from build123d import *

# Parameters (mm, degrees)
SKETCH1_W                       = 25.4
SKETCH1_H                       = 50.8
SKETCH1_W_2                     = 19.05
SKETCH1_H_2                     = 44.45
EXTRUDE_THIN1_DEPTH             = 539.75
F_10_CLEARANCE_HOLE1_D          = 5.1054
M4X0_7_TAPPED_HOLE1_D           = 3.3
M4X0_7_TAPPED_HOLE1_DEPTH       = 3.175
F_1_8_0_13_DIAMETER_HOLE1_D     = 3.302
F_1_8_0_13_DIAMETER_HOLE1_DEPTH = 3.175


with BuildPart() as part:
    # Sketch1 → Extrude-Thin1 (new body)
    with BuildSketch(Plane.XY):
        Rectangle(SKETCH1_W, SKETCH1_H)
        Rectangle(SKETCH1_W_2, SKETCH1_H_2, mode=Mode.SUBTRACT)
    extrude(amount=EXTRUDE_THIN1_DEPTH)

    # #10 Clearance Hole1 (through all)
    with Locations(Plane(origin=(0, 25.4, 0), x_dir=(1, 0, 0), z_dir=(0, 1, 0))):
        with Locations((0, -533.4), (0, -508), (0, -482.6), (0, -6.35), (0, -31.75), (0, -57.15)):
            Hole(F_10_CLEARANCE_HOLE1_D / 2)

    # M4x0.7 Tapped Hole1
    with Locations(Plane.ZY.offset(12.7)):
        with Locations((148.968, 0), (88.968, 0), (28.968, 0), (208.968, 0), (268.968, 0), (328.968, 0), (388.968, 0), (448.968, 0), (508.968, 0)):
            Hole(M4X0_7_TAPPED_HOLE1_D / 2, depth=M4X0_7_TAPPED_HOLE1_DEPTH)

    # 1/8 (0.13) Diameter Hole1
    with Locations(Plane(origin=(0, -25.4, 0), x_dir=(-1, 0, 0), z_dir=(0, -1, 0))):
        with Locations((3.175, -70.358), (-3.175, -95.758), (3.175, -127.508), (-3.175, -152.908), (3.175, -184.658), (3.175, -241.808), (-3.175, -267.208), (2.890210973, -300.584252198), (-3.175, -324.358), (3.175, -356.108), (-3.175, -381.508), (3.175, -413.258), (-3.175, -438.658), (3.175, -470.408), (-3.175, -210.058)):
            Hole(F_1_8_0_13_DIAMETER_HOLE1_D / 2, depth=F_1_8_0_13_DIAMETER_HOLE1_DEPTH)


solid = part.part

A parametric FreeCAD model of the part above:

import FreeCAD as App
import Part
import Sketcher
Q = App.Units.Quantity

doc = App.newDocument("Part")
body = doc.addObject("PartDesign::Body", "Body")

sketch1 = body.newObject("Sketcher::SketchObject", "Sketch")
sketch1.AttachmentSupport = (doc.getObject("XY_Plane"), [""])
sketch1.MapMode = "FlatFace"
sketch1.addGeometry([
    Part.LineSegment(App.Vector(-13, 25, 0), App.Vector(-13, -25, 0)),
    Part.LineSegment(App.Vector(-13, -25, 0), App.Vector(13, -25, 0)),
    Part.LineSegment(App.Vector(13, -25, 0), App.Vector(13, 25, 0)),
    Part.LineSegment(App.Vector(13, 25, 0), App.Vector(-13, 25, 0)),
    Part.LineSegment(App.Vector(10, -22, 0), App.Vector(-10, -22, 0)),
    Part.LineSegment(App.Vector(-10, -22, 0), App.Vector(-10, 22, 0)),
    Part.LineSegment(App.Vector(-10, 22, 0), App.Vector(10, 22, 0)),
    Part.LineSegment(App.Vector(10, 22, 0), App.Vector(10, -22, 0)),
], False)
sketch1.addConstraint([
    Sketcher.Constraint("Coincident", 0, 2, 1, 1),
    Sketcher.Constraint("Coincident", 1, 2, 2, 1),
    Sketcher.Constraint("Coincident", 2, 2, 3, 1),
    Sketcher.Constraint("Coincident", 3, 2, 0, 1),
    Sketcher.Constraint("Coincident", 4, 2, 5, 1),
    Sketcher.Constraint("Coincident", 5, 2, 6, 1),
    Sketcher.Constraint("Coincident", 6, 2, 7, 1),
    Sketcher.Constraint("Coincident", 7, 2, 4, 1),
    Sketcher.Constraint("Vertical", 0),
    Sketcher.Constraint("Horizontal", 1),
    Sketcher.Constraint("Vertical", 2),
    Sketcher.Constraint("Horizontal", 3),
    Sketcher.Constraint("Horizontal", 4),
    Sketcher.Constraint("Vertical", 5),
    Sketcher.Constraint("Horizontal", 6),
    Sketcher.Constraint("Vertical", 7),
    Sketcher.Constraint("Symmetric", 0, 2, 2, 2, -1, 1),
    Sketcher.Constraint("Symmetric", 4, 2, 6, 2, -1, 1),
    Sketcher.Constraint("DistanceX", 1, 1, 1, 2, Q("1 in")),
    Sketcher.Constraint("DistanceY", 0, 2, 0, 1, Q("2 in")),
    Sketcher.Constraint("DistanceX", 4, 2, 4, 1, Q("0.75 in")),
    Sketcher.Constraint("DistanceY", 5, 1, 5, 2, Q("1.75 in")),
])
pad1 = body.newObject("PartDesign::Pad", "Pad")
pad1.Profile = sketch1
pad1.Length = Q("21.25 in")

sketch2 = body.newObject("Sketcher::SketchObject", "Sketch001")
sketch2.AttachmentSupport = (doc.getObject("XZ_Plane"), [""])
sketch2.MapMode = "FlatFace"
sketch2.AttachmentOffset = App.Placement(App.Vector(0, 0, -1 * 25.4), App.Rotation())
sketch2.addGeometry([
    Part.Circle(App.Vector(0, 533.4, 0), App.Vector(0, 0, 1), 2.6),
    Part.Circle(App.Vector(0, 508, 0), App.Vector(0, 0, 1), 2.6),
    Part.Circle(App.Vector(0, 482.6, 0), App.Vector(0, 0, 1), 2.6),
    Part.Circle(App.Vector(0, 6.3, 0), App.Vector(0, 0, 1), 2.6),
    Part.Circle(App.Vector(0, 31.8, 0), App.Vector(0, 0, 1), 2.6),
    Part.Circle(App.Vector(0, 57.1, 0), App.Vector(0, 0, 1), 2.6),
], False)
sketch2.addConstraint([
    Sketcher.Constraint("Equal", 0, 1),
    Sketcher.Constraint("Equal", 1, 2),
    Sketcher.Constraint("Equal", 2, 3),
    Sketcher.Constraint("Equal", 3, 4),
    Sketcher.Constraint("Equal", 4, 5),
    Sketcher.Constraint("PointOnObject", 0, 3, -2),
    Sketcher.Constraint("PointOnObject", 1, 3, -2),
    Sketcher.Constraint("PointOnObject", 2, 3, -2),
    Sketcher.Constraint("PointOnObject", 3, 3, -2),
    Sketcher.Constraint("PointOnObject", 4, 3, -2),
    Sketcher.Constraint("PointOnObject", 5, 3, -2),
    Sketcher.Constraint("Diameter", 0, Q("0.201 in")),
    Sketcher.Constraint("DistanceY", -1, 1, 0, 3, Q("21 in")),
    Sketcher.Constraint("DistanceY", -1, 1, 1, 3, Q("20 in")),
    Sketcher.Constraint("DistanceY", -1, 1, 2, 3, Q("19 in")),
    Sketcher.Constraint("DistanceY", 3, 3, 4, 3, Q("1 in")),
    Sketcher.Constraint("DistanceY", 4, 3, 5, 3, Q("1 in")),
    Sketcher.Constraint("DistanceY", -1, 1, 3, 3, Q("0.25 in")),
])
doc.recompute()
hole = body.newObject("PartDesign::Hole", "Hole")
hole.Profile = sketch2
hole.ThreadType = "None"
hole.Diameter = Q("0.201 in")
hole.DepthType = "ThroughAll"
hole.Reversed = True

sketch3 = body.newObject("Sketcher::SketchObject", "Sketch002")
sketch3.AttachmentSupport = (doc.getObject("YZ_Plane"), [""])
sketch3.MapMode = "FlatFace"
sketch3.AttachmentOffset = App.Placement(App.Vector(0, 0, -0.5 * 25.4), App.Rotation())
sketch3.addGeometry([
    Part.Circle(App.Vector(0, 149, 0), App.Vector(0, 0, 1), 1.6),
    Part.Circle(App.Vector(0, 89, 0), App.Vector(0, 0, 1), 1.6),
    Part.Circle(App.Vector(0, 29, 0), App.Vector(0, 0, 1), 1.6),
    Part.Circle(App.Vector(0, 209, 0), App.Vector(0, 0, 1), 1.6),
    Part.Circle(App.Vector(0, 269, 0), App.Vector(0, 0, 1), 1.6),
    Part.Circle(App.Vector(0, 329, 0), App.Vector(0, 0, 1), 1.6),
    Part.Circle(App.Vector(0, 389, 0), App.Vector(0, 0, 1), 1.6),
    Part.Circle(App.Vector(0, 449, 0), App.Vector(0, 0, 1), 1.6),
    Part.Circle(App.Vector(0, 509, 0), App.Vector(0, 0, 1), 1.6),
], False)
sketch3.addConstraint([
    Sketcher.Constraint("Equal", 0, 1),
    Sketcher.Constraint("Equal", 1, 2),
    Sketcher.Constraint("Equal", 2, 3),
    Sketcher.Constraint("Equal", 3, 4),
    Sketcher.Constraint("Equal", 4, 5),
    Sketcher.Constraint("Equal", 5, 6),
    Sketcher.Constraint("Equal", 6, 7),
    Sketcher.Constraint("Equal", 7, 8),
    Sketcher.Constraint("PointOnObject", 0, 3, -2),
    Sketcher.Constraint("PointOnObject", 1, 3, -2),
    Sketcher.Constraint("PointOnObject", 2, 3, -2),
    Sketcher.Constraint("PointOnObject", 3, 3, -2),
    Sketcher.Constraint("PointOnObject", 4, 3, -2),
    Sketcher.Constraint("PointOnObject", 5, 3, -2),
    Sketcher.Constraint("PointOnObject", 6, 3, -2),
    Sketcher.Constraint("PointOnObject", 7, 3, -2),
    Sketcher.Constraint("PointOnObject", 8, 3, -2),
    Sketcher.Constraint("Diameter", 0, 3.3),
    Sketcher.Constraint("DistanceY", -1, 1, 0, 3, 148.968),
    Sketcher.Constraint("DistanceY", -1, 1, 1, 3, 88.968),
    Sketcher.Constraint("DistanceY", -1, 1, 2, 3, 28.968),
    Sketcher.Constraint("DistanceY", -1, 1, 3, 3, 208.968),
    Sketcher.Constraint("DistanceY", -1, 1, 4, 3, 268.968),
    Sketcher.Constraint("DistanceY", -1, 1, 5, 3, 328.968),
    Sketcher.Constraint("DistanceY", -1, 1, 6, 3, 388.968),
    Sketcher.Constraint("DistanceY", -1, 1, 7, 3, 448.968),
    Sketcher.Constraint("DistanceY", -1, 1, 8, 3, 508.968),
])
doc.recompute()
hole2 = body.newObject("PartDesign::Hole", "Hole001")
hole2.Profile = sketch3
hole2.ThreadType = "None"
hole2.Diameter = 3.3
hole2.DepthType = "Dimension"
hole2.Depth = Q("0.125 in")
hole2.DrillPoint = "Flat"
hole2.Reversed = True

sketch4 = body.newObject("Sketcher::SketchObject", "Sketch003")
sketch4.AttachmentSupport = (doc.getObject("XZ_Plane"), [""])
sketch4.MapMode = "FlatFace"
sketch4.AttachmentOffset = App.Placement(App.Vector(0, 0, 1 * 25.4), App.Rotation())
sketch4.addGeometry([
    Part.Circle(App.Vector(-3.2, 70.4, 0), App.Vector(0, 0, 1), 1.7),
    Part.Circle(App.Vector(3.2, 95.8, 0), App.Vector(0, 0, 1), 1.7),
    Part.Circle(App.Vector(-3.2, 127.5, 0), App.Vector(0, 0, 1), 1.7),
    Part.Circle(App.Vector(3.2, 152.9, 0), App.Vector(0, 0, 1), 1.7),
    Part.Circle(App.Vector(-3.2, 184.7, 0), App.Vector(0, 0, 1), 1.7),
    Part.Circle(App.Vector(-3.2, 241.8, 0), App.Vector(0, 0, 1), 1.7),
    Part.Circle(App.Vector(3.2, 267.2, 0), App.Vector(0, 0, 1), 1.7),
    Part.Circle(App.Vector(-2.9, 300.6, 0), App.Vector(0, 0, 1), 1.7),
    Part.Circle(App.Vector(3.2, 324.4, 0), App.Vector(0, 0, 1), 1.7),
    Part.Circle(App.Vector(-3.2, 356.1, 0), App.Vector(0, 0, 1), 1.7),
    Part.Circle(App.Vector(3.2, 381.5, 0), App.Vector(0, 0, 1), 1.7),
    Part.Circle(App.Vector(-3.2, 413.3, 0), App.Vector(0, 0, 1), 1.7),
    Part.Circle(App.Vector(3.2, 438.7, 0), App.Vector(0, 0, 1), 1.7),
    Part.Circle(App.Vector(-3.2, 470.4, 0), App.Vector(0, 0, 1), 1.7),
    Part.Circle(App.Vector(3.2, 210.1, 0), App.Vector(0, 0, 1), 1.7),
], False)
sketch4.addConstraint([
    Sketcher.Constraint("Equal", 0, 1),
    Sketcher.Constraint("Equal", 1, 2),
    Sketcher.Constraint("Equal", 2, 3),
    Sketcher.Constraint("Equal", 3, 4),
    Sketcher.Constraint("Equal", 4, 5),
    Sketcher.Constraint("Equal", 5, 6),
    Sketcher.Constraint("Equal", 6, 7),
    Sketcher.Constraint("Equal", 7, 8),
    Sketcher.Constraint("Equal", 8, 9),
    Sketcher.Constraint("Equal", 9, 10),
    Sketcher.Constraint("Equal", 10, 11),
    Sketcher.Constraint("Equal", 11, 12),
    Sketcher.Constraint("Equal", 12, 13),
    Sketcher.Constraint("Equal", 13, 14),
    Sketcher.Constraint("Vertical", 0, 3, 2, 3),
    Sketcher.Constraint("Vertical", 1, 3, 3, 3),
    Sketcher.Constraint("Vertical", 2, 3, 4, 3),
    Sketcher.Constraint("Vertical", 4, 3, 5, 3),
    Sketcher.Constraint("Vertical", 3, 3, 6, 3),
    Sketcher.Constraint("Vertical", 6, 3, 8, 3),
    Sketcher.Constraint("Vertical", 5, 3, 9, 3),
    Sketcher.Constraint("Vertical", 8, 3, 10, 3),
    Sketcher.Constraint("Vertical", 9, 3, 11, 3),
    Sketcher.Constraint("Vertical", 10, 3, 12, 3),
    Sketcher.Constraint("Vertical", 11, 3, 13, 3),
    Sketcher.Constraint("Vertical", 12, 3, 14, 3),
    Sketcher.Constraint("Diameter", 0, Q("0.13 in")),
    Sketcher.Constraint("DistanceY", 0, 3, 1, 3, Q("1 in")),
    Sketcher.Constraint("DistanceY", 2, 3, 3, 3, Q("1 in")),
    Sketcher.Constraint("DistanceY", 5, 3, 6, 3, Q("1 in")),
    Sketcher.Constraint("DistanceY", 9, 3, 10, 3, Q("1 in")),
    Sketcher.Constraint("DistanceY", 11, 3, 12, 3, Q("1 in")),
    Sketcher.Constraint("DistanceY", 4, 3, 14, 3, Q("1 in")),
    Sketcher.Constraint("DistanceY", 1, 3, 4, 3, Q("3.5 in")),
    Sketcher.Constraint("DistanceY", 3, 3, 5, 3, Q("3.5 in")),
    Sketcher.Constraint("DistanceY", 4, 3, 8, 3, Q("5.5 in")),
    Sketcher.Constraint("DistanceY", 6, 3, 9, 3, Q("3.5 in")),
    Sketcher.Constraint("DistanceY", 8, 3, 11, 3, Q("3.5 in")),
    Sketcher.Constraint("DistanceY", 10, 3, 13, 3, Q("3.5 in")),
    Sketcher.Constraint("DistanceY", -1, 1, 0, 3, Q("2.77 in")),
    Sketcher.Constraint("DistanceY", -1, 1, 2, 3, Q("5.02 in")),
    Sketcher.Constraint("DistanceX", 0, 3, 1, 3, Q("0.25 in")),
    Sketcher.Constraint("DistanceX", 0, 3, -1, 1, Q("0.125 in")),
    Sketcher.Constraint("DistanceX", 7, 3, -1, 1, 2.890211),
    Sketcher.Constraint("DistanceY", -1, 1, 7, 3, 300.584252),
])
doc.recompute()
hole3 = body.newObject("PartDesign::Hole", "Hole002")
hole3.Profile = sketch4
hole3.ThreadType = "None"
hole3.Diameter = Q("0.13 in")
hole3.DepthType = "Dimension"
hole3.Depth = Q("0.125 in")
hole3.DrillPoint = "Flat"

doc.recompute()
